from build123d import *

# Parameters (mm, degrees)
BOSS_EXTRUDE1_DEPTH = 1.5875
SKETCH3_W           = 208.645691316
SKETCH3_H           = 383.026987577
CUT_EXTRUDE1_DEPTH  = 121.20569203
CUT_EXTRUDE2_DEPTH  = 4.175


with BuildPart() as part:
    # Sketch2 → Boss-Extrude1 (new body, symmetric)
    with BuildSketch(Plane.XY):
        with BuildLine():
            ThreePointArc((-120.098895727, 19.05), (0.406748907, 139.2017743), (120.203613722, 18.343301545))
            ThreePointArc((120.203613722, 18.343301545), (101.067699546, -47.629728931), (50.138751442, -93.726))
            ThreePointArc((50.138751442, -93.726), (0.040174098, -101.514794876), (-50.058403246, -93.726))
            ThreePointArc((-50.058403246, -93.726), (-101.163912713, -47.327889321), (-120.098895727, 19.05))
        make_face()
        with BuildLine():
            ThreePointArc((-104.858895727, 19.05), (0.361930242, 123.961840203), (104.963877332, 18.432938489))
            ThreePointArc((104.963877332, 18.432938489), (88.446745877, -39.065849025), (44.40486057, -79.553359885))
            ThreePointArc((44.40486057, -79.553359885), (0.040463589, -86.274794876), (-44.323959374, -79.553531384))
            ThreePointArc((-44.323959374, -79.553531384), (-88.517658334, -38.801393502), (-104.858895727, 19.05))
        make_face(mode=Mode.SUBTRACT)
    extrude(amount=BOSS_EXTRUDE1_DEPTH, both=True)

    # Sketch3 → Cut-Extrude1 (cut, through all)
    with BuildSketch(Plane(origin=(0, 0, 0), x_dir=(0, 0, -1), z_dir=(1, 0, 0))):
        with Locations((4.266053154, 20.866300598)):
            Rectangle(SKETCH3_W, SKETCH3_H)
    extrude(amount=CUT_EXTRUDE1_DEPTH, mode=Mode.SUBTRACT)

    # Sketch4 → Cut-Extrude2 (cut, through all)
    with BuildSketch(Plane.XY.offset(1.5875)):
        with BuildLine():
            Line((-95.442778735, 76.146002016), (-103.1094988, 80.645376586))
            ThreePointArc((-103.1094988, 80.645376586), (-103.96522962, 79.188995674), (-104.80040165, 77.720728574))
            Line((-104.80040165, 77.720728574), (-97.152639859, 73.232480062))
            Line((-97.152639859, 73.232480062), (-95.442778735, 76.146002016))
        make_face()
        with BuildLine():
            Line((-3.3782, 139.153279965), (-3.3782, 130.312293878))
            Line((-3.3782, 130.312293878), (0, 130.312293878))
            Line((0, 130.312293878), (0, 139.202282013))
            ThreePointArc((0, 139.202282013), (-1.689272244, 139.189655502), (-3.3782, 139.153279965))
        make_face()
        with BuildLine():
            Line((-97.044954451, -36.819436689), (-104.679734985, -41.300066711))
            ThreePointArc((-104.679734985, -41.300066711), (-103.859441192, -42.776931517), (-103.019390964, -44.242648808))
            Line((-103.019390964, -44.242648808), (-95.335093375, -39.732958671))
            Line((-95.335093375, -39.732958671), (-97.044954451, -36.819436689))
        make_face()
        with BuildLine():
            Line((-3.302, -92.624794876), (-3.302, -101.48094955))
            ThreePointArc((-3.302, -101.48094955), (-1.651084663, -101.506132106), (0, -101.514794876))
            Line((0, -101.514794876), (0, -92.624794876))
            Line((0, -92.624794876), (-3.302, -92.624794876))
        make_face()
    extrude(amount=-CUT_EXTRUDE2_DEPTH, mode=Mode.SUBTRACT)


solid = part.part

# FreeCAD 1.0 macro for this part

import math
import FreeCAD as App
import Part
import Sketcher
Q = App.Units.Quantity


def add_polygon(sketch, points):
    """Adds a closed chain of lines whose ends are joined by coincident constraints."""
    first, n = sketch.GeometryCount, len(points)
    for a, b in zip(points, points[1:] + points[:1]):
        sketch.addGeometry(Part.LineSegment(App.Vector(*a, 0), App.Vector(*b, 0)), False)
    for i in range(n):
        sketch.addConstraint(Sketcher.Constraint("Coincident", first + i, 2, first + (i + 1) % n, 1))

doc = App.newDocument("Part")
body = doc.addObject("PartDesign::Body", "Body")

# Sketch on XY plane
sketch1 = doc.addObject("Sketcher::SketchObject", "Sketch")
body.addObject(sketch1)
sketch1.AttachmentSupport = (doc.XY_Plane, [""])
sketch1.MapMode = "FlatFace"
sketch1.addGeometry(Part.ArcOfCircle(Part.Circle(App.Vector(0, 19, 0), App.Vector(0, 0, 1), 120), math.radians(0), math.radians(180)), False)
sketch1.addGeometry(Part.ArcOfCircle(Part.Circle(App.Vector(6, 19, 0), App.Vector(0, 0, 1), 126), math.radians(-180), math.radians(-116)), False)
sketch1.addGeometry(Part.ArcOfCircle(Part.Circle(App.Vector(0, 63, 0), App.Vector(0, 0, 1), 165), math.radians(-108), math.radians(-72)), False)
sketch1.addGeometry(Part.ArcOfCircle(Part.Circle(App.Vector(-6, 19, 0), App.Vector(0, 0, 1), 126), math.radians(-64), math.radians(0)), False)
sketch1.addGeometry(Part.ArcOfCircle(Part.Circle(App.Vector(0, 19, 0), App.Vector(0, 0, 1), 105), math.radians(0), math.radians(180)), False)
sketch1.addGeometry(Part.ArcOfCircle(Part.Circle(App.Vector(-6, 19, 0), App.Vector(0, 0, 1), 111), math.radians(-63), math.radians(0)), False)
sketch1.addGeometry(Part.ArcOfCircle(Part.Circle(App.Vector(0, 63, 0), App.Vector(0, 0, 1), 150), math.radians(-107), math.radians(-73)), False)
sketch1.addGeometry(Part.ArcOfCircle(Part.Circle(App.Vector(6, 19, 0), App.Vector(0, 0, 1), 111), math.radians(-180), math.radians(-117)), False)
sketch1.addConstraint(Sketcher.Constraint("Tangent", 0, 2, 1, 1))
sketch1.addConstraint(Sketcher.Constraint("Coincident", 1, 2, 2, 1))
sketch1.addConstraint(Sketcher.Constraint("Coincident", 2, 2, 3, 1))
sketch1.addConstraint(Sketcher.Constraint("Tangent", 3, 2, 0, 1))
sketch1.addConstraint(Sketcher.Constraint("Tangent", 4, 1, 5, 2))
sketch1.addConstraint(Sketcher.Constraint("Coincident", 5, 1, 6, 2))
sketch1.addConstraint(Sketcher.Constraint("Coincident", 6, 1, 7, 2))
sketch1.addConstraint(Sketcher.Constraint("Tangent", 7, 1, 4, 2))
sketch1.addConstraint(Sketcher.Constraint("Coincident", 4, 3, 0, 3))
sketch1.addConstraint(Sketcher.Constraint("Coincident", 5, 3, 3, 3))
sketch1.addConstraint(Sketcher.Constraint("Coincident", 6, 3, 2, 3))
sketch1.addConstraint(Sketcher.Constraint("Coincident", 7, 3, 1, 3))
sketch1.addConstraint(Sketcher.Constraint("Horizontal", 0, 3, 1, 3))
sketch1.addConstraint(Sketcher.Constraint("Horizontal", 1, 2, 2, 2))
sketch1.addConstraint(Sketcher.Constraint("DistanceY", -1, 1, 2, 3, Q("2.5 in")))
sketch1.addConstraint(Sketcher.Constraint("DistanceX", 0, 2, 7, 1, Q("0.6 in")))
sketch1.addConstraint(Sketcher.Constraint("DistanceY", -1, 1, 0, 3, Q("0.75 in")))
sketch1.addConstraint(Sketcher.Constraint("DistanceY", 1, 2, -1, 1, Q("3.69 in")))
sketch1.addConstraint(Sketcher.Constraint("Radius", 0, Q("120.152294 mm")))
sketch1.addConstraint(Sketcher.Constraint("Radius", 1, Q("125.813627 mm")))
sketch1.addConstraint(Sketcher.Constraint("Radius", 2, Q("165.014795 mm")))
sketch1.addConstraint(Sketcher.Constraint("Radius", 3, Q("125.846414 mm")))
sketch1.addConstraint(Sketcher.Constraint("Radius", 6, Q("149.774795 mm")))
sketch1.addConstraint(Sketcher.Constraint("DistanceX", -1, 1, 0, 3, Q("0.053398 mm")))
pad1 = doc.addObject("PartDesign::Pad", "Pad")
body.addObject(pad1)
pad1.Profile = sketch1
pad1.Length = Q("0.125 in")
pad1.Midplane = True

# Sketch on YZ plane
sketch2 = doc.addObject("Sketcher::SketchObject", "Sketch001")
body.addObject(sketch2)
sketch2.AttachmentSupport = (doc.YZ_Plane, [""])
sketch2.MapMode = "FlatFace"
add_polygon(sketch2, [(212, 100), (-171, 100), (-171, -109), (212, -109)])  # lines 0-3
sketch2.addConstraint(Sketcher.Constraint("Horizontal", 0))
sketch2.addConstraint(Sketcher.Constraint("Vertical", 1))
sketch2.addConstraint(Sketcher.Constraint("Horizontal", 2))
sketch2.addConstraint(Sketcher.Constraint("Vertical", 3))
sketch2.addConstraint(Sketcher.Constraint("DistanceY", 1, 2, 1, 1, Q("208.645691 mm")))
sketch2.addConstraint(Sketcher.Constraint("DistanceY", 1, 2, -1, 1, Q("108.588899 mm")))
sketch2.addConstraint(Sketcher.Constraint("DistanceX", 0, 2, 0, 1, Q("383.026988 mm")))
sketch2.addConstraint(Sketcher.Constraint("DistanceX", 0, 2, -1, 1, Q("170.647193 mm")))
pocket1 = doc.addObject("PartDesign::Pocket", "Pocket")
body.addObject(pocket1)
pocket1.Profile = sketch2
pocket1.Type = "ThroughAll"
pocket1.Reversed = True

# Sketch on XY plane
sketch3 = doc.addObject("Sketcher::SketchObject", "Sketch002")
body.addObject(sketch3)
sketch3.AttachmentSupport = (doc.XY_Plane, [""])
sketch3.MapMode = "FlatFace"
sketch3.AttachmentOffset = App.Placement(App.Vector(0, 0, 0.0625 * 25.4), App.Rotation())
sketch3.addGeometry(Part.LineSegment(App.Vector(-95.4, 76.1, 0), App.Vector(-103.1, 80.6, 0)), False)
sketch3.addGeometry(Part.ArcOfCircle(Part.Circle(App.Vector(0.1, 19, 0), App.Vector(0, 0, 1), 120.2), math.radians(149.16), math.radians(150.77)), False)
sketch3.addGeometry(Part.LineSegment(App.Vector(-104.8, 77.7, 0), App.Vector(-97.2, 73.2, 0)), False)
sketch3.addGeometry(Part.LineSegment(App.Vector(-97.2, 73.2, 0), App.Vector(-95.4, 76.1, 0)), False)
sketch3.addGeometry(Part.LineSegment(App.Vector(-3.4, 139.2, 0), App.Vector(-3.4, 130.3, 0)), False)
sketch3.addGeometry(Part.LineSegment(App.Vector(-3.4, 130.3, 0), App.Vector(0, 130.3, 0)), False)
sketch3.addGeometry(Part.LineSegment(App.Vector(0, 130.3, 0), App.Vector(0, 139.2, 0)), False)
sketch3.addGeometry(Part.ArcOfCircle(Part.Circle(App.Vector(0.1, 19, 0), App.Vector(0, 0, 1), 120.2), math.radians(90.03), math.radians(91.64)), False)
sketch3.addGeometry(Part.LineSegment(App.Vector(-97, -36.8, 0), App.Vector(-104.7, -41.3, 0)), False)
sketch3.addGeometry(Part.ArcOfCircle(Part.Circle(App.Vector(5.7, 19, 0), App.Vector(0, 0, 1), 125.8), math.radians(-151.34), math.radians(-149.8)), False)
sketch3.addGeometry(Part.LineSegment(App.Vector(-103, -44.2, 0), App.Vector(-95.3, -39.7, 0)), False)
sketch3.addGeometry(Part.LineSegment(App.Vector(-95.3, -39.7, 0), App.Vector(-97, -36.8, 0)), False)
sketch3.addGeometry(Part.LineSegment(App.Vector(-3.3, -92.6, 0), App.Vector(-3.3, -101.5, 0)), False)
sketch3.addGeometry(Part.ArcOfCircle(Part.Circle(App.Vector(0, 63.5, 0), App.Vector(0, 0, 1), 165), math.radians(-91.16), math.radians(-90.01)), False)
sketch3.addGeometry(Part.LineSegment(App.Vector(0, -101.5, 0), App.Vector(0, -92.6, 0)), False)
sketch3.addGeometry(Part.LineSegment(App.Vector(0, -92.6, 0), App.Vector(-3.3, -92.6, 0)), False)
sketch3.addConstraint(Sketcher.Constraint("Coincident", 0, 2, 1, 1))
sketch3.addConstraint(Sketcher.Constraint("Coincident", 1, 2, 2, 1))
sketch3.addConstraint(Sketcher.Constraint("Coincident", 2, 2, 3, 1))
sketch3.addConstraint(Sketcher.Constraint("Coincident", 3, 2, 0, 1))
sketch3.addConstraint(Sketcher.Constraint("Coincident", 4, 2, 5, 1))
sketch3.addConstraint(Sketcher.Constraint("Coincident", 5, 2, 6, 1))
sketch3.addConstraint(Sketcher.Constraint("Coincident", 6, 2, 7, 1))
sketch3.addConstraint(Sketcher.Constraint("Coincident", 7, 2, 4, 1))
sketch3.addConstraint(Sketcher.Constraint("Coincident", 8, 2, 9, 1))
sketch3.addConstraint(Sketcher.Constraint("Coincident", 9, 2, 10, 1))
sketch3.addConstraint(Sketcher.Constraint("Coincident", 10, 2, 11, 1))
sketch3.addConstraint(Sketcher.Constraint("Coincident", 11, 2, 8, 1))
sketch3.addConstraint(Sketcher.Constraint("Coincident", 12, 2, 13, 1))
sketch3.addConstraint(Sketcher.Constraint("Coincident", 13, 2, 14, 1))
sketch3.addConstraint(Sketcher.Constraint("Coincident", 14, 2, 15, 1))
sketch3.addConstraint(Sketcher.Constraint("Coincident", 15, 2, 12, 1))
sketch3.addConstraint(Sketcher.Constraint("Vertical", 4))
sketch3.addConstraint(Sketcher.Constraint("Horizontal", 5))
sketch3.addConstraint(Sketcher.Constraint("Vertical", 6))
sketch3.addConstraint(Sketcher.Constraint("Vertical", 12))
sketch3.addConstraint(Sketcher.Constraint("Vertical", 14))
sketch3.addConstraint(Sketcher.Constraint("Horizontal", 15))
sketch3.addConstraint(Sketcher.Constraint("Coincident", 7, 3, 1, 3))
sketch3.addConstraint(Sketcher.Constraint("PointOnObject", 5, 2, -2))
sketch3.addConstraint(Sketcher.Constraint("PointOnObject", 13, 2, -2))
sketch3.addConstraint(Sketcher.Constraint("Parallel", 0, 2))
sketch3.addConstraint(Sketcher.Constraint("Perpendicular", 2, 3))
sketch3.addConstraint(Sketcher.Constraint("Parallel", 8, 10))
sketch3.addConstraint(Sketcher.Constraint("Perpendicular", 10, 11))
sketch3.addConstraint(Sketcher.Constraint("Horizontal", 7, 3, 9, 3))
sketch3.addConstraint(Sketcher.Constraint("Equal", 3, 11))
sketch3.addConstraint(Sketcher.Constraint("DistanceX", 15, 2, 15, 1, Q("0.13 in")))
sketch3.addConstraint(Sketcher.Constraint("DistanceY", 14, 1, 14, 2, Q("0.35 in")))
sketch3.addConstraint(Sketcher.Constraint("DistanceX", 5, 1, 5, 2, Q("0.133 in")))
sketch3.addConstraint(Sketcher.Constraint("DistanceY", -1, 1, 1, 3, Q("0.7499999 in")))
sketch3.addConstraint(Sketcher.Constraint("Distance", 3, Q("0.133 in")))
sketch3.addConstraint(Sketcher.Constraint("DistanceX", 1, 2, -1, 1, Q("4.1260001 in")))
sketch3.addConstraint(Sketcher.Constraint("Radius", 1, Q("120.152297 mm")))
sketch3.addConstraint(Sketcher.Constraint("Radius", 7, Q("120.152294 mm")))
sketch3.addConstraint(Sketcher.Constraint("Radius", 9, Q("125.813623 mm")))
sketch3.addConstraint(Sketcher.Constraint("Radius", 13, Q("165.014996 mm")))
sketch3.addConstraint(Sketcher.Constraint("DistanceY", 6, 1, 6, 2, Q("8.889988 mm")))
sketch3.addConstraint(Sketcher.Constraint("DistanceX", -1, 1, 1, 3, Q("0.0534 mm")))
sketch3.addConstraint(Sketcher.Constraint("DistanceX", 3, 2, 13, 3, Q("95.483 mm")))
sketch3.addConstraint(Sketcher.Constraint("DistanceY", 2, 2, 6, 2, Q("65.969802 mm")))
sketch3.addConstraint(Sketcher.Constraint("DistanceY", 12, 2, 9, 2, Q("57.238301 mm")))
sketch3.addConstraint(Sketcher.Constraint("DistanceY", 12, 2, 12, 1, Q("8.856155 mm")))
sketch3.addConstraint(Sketcher.Constraint("DistanceX", 9, 2, -1, 1, Q("103.019391 mm")))
sketch3.addConstraint(Sketcher.Constraint("DistanceY", 9, 2, -1, 1, Q("44.242649 mm")))
sketch3.addConstraint(Sketcher.Constraint("DistanceY", 10, 2, -1, 1, Q("39.732959 mm")))
sketch3.addConstraint(Sketcher.Constraint("DistanceX", 8, 2, 10, 2, Q("9.344642 mm")))
pocket2 = doc.addObject("PartDesign::Pocket", "Pocket001")
body.addObject(pocket2)
pocket2.Profile = sketch3
pocket2.Type = "ThroughAll"

doc.recompute()
